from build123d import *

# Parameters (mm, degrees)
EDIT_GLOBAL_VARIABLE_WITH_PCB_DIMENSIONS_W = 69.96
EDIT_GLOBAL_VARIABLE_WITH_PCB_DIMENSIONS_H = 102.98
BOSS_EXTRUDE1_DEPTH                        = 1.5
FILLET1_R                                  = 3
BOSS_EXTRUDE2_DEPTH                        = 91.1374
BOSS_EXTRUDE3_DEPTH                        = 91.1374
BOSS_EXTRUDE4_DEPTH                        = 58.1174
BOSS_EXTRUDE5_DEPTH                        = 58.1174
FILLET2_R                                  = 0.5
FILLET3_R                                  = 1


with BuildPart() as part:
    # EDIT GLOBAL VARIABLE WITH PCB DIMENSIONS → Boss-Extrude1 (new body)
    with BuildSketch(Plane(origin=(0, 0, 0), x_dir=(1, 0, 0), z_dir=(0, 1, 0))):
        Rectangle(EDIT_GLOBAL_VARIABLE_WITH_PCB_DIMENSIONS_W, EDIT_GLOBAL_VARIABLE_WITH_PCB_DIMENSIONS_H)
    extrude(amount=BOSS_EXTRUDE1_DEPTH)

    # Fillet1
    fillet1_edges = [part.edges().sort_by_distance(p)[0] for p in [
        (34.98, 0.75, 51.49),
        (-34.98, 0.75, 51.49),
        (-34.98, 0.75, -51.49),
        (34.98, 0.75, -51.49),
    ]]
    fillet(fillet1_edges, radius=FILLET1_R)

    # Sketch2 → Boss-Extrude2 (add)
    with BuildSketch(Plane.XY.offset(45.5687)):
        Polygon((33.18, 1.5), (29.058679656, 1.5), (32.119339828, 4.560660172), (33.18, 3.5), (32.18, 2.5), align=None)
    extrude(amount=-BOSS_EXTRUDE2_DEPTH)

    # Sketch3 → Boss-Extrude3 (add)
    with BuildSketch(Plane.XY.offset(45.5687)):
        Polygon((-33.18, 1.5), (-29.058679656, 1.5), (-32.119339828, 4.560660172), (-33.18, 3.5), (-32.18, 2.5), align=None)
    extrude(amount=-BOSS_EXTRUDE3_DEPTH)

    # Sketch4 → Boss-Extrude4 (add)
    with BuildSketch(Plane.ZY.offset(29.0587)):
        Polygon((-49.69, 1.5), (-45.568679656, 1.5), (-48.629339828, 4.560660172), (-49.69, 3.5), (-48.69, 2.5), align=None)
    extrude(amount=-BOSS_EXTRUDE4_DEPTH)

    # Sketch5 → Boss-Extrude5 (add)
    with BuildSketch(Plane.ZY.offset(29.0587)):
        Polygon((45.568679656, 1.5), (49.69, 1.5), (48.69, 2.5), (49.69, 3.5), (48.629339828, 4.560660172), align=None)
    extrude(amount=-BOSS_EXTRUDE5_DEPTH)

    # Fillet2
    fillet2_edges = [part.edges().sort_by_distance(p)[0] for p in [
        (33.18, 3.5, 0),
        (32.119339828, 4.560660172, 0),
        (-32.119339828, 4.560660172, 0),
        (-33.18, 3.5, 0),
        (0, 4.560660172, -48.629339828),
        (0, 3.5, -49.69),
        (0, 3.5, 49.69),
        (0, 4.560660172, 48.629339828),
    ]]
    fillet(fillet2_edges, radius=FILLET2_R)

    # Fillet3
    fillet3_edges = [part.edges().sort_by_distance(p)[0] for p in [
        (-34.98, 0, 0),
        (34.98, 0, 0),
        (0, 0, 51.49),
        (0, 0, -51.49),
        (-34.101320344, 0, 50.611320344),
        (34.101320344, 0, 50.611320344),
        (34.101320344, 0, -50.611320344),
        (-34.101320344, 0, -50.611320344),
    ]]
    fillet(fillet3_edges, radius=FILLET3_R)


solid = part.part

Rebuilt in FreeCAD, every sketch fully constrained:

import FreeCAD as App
import Part
import Sketcher

V = App.Vector
Q = App.Units.Quantity


def edges_at(feature, points):
    """Names of the edges that pass closest to the given points."""
    edges = feature.Shape.Edges
    near = lambda p: min(range(len(edges)), key=lambda i: edges[i].distToShape(Part.Vertex(*p))[0])
    return sorted({f"Edge{near(p) + 1}" for p in points})


def add_polygon(sketch, points):
    """Adds a closed chain of lines whose ends are joined by coincident constraints."""
    first, n = sketch.GeometryCount, len(points)
    for a, b in zip(points, points[1:] + points[:1]):
        sketch.addGeometry(Part.LineSegment(App.Vector(*a, 0), App.Vector(*b, 0)), False)
    for i in range(n):
        sketch.addConstraint(Sketcher.Constraint("Coincident", first + i, 2, first + (i + 1) % n, 1))

doc = App.newDocument("Part")
body = doc.addObject("PartDesign::Body", "Body")

# Sketch on XZ plane
sketch1 = body.newObject("Sketcher::SketchObject", "Sketch")
sketch1.AttachmentSupport = (doc.getObject("XZ_Plane"), [""])
sketch1.MapMode = "FlatFace"
add_polygon(sketch1, [(-35, -51), (-35, 51), (35, 51), (35, -51)])  # lines 0-3
sketch1.addConstraint(Sketcher.Constraint("Vertical", 0))
sketch1.addConstraint(Sketcher.Constraint("Horizontal", 1))
sketch1.addConstraint(Sketcher.Constraint("Vertical", 2))
sketch1.addConstraint(Sketcher.Constraint("Horizontal", 3))
sketch1.addConstraint(Sketcher.Constraint("Symmetric", 0, 2, 2, 2, -1, 1))
sketch1.addConstraint(Sketcher.Constraint("DistanceX", 1, 1, 1, 2, Q("69.96 mm")))
sketch1.addConstraint(Sketcher.Constraint("DistanceY", 0, 1, 0, 2, Q("102.98 mm")))
pad1 = body.newObject("PartDesign::Pad", "Pad")
pad1.Profile = sketch1
pad1.Length = 1.5
pad1.Reversed = True
doc.recompute()

fillet = body.newObject("PartDesign::Fillet", "Fillet")
fillet.Base = (pad1, edges_at(pad1, [
    (34.98, 0.75, 51.49),
    (-34.98, 0.75, 51.49),
    (-34.98, 0.75, -51.49),
    (34.98, 0.75, -51.49),
]))
fillet.Radius = 3

# Sketch on XY plane
sketch2 = body.newObject("Sketcher::SketchObject", "Sketch001")
sketch2.AttachmentSupport = (doc.getObject("XY_Plane"), [""])
sketch2.MapMode = "FlatFace"
sketch2.AttachmentOffset = App.Placement(V(0, 0, 45.5687), App.Rotation())
add_polygon(sketch2, [(29.1, 1.5), (33.2, 1.5), (32.2, 2.5), (33.2, 3.5), (32.1, 4.6)])  # lines 0-4
sketch2.addConstraint(Sketcher.Constraint("Horizontal", 0))
sketch2.addConstraint(Sketcher.Constraint("Perpendicular", 1, 2))
sketch2.addConstraint(Sketcher.Constraint("Perpendicular", 2, 3))
sketch2.addConstraint(Sketcher.Constraint("Perpendicular", 3, 4))
sketch2.addConstraint(Sketcher.Constraint("Vertical", 0, 2, 2, 2))
sketch2.addConstraint(Sketcher.Constraint("Equal", 1, 2))
sketch2.addConstraint(Sketcher.Constraint("DistanceX", 1, 2, 0, 2, Q("1 mm")))
sketch2.addConstraint(Sketcher.Constraint("Distance", 3, Q("1.5 mm")))
sketch2.addConstraint(Sketcher.Constraint("DistanceY", -1, 1, 0, 2, Q("1.5 mm")))
sketch2.addConstraint(Sketcher.Constraint("DistanceX", -1, 1, 0, 2, Q("33.18 mm")))
pad2 = body.newObject("PartDesign::Pad", "Pad001")
pad2.Profile = sketch2
pad2.Length = 91.1374
pad2.Reversed = True

# Sketch on XY plane
sketch3 = body.newObject("Sketcher::SketchObject", "Sketch002")
sketch3.AttachmentSupport = (doc.getObject("XY_Plane"), [""])
sketch3.MapMode = "FlatFace"
sketch3.AttachmentOffset = App.Placement(V(0, 0, 45.5687), App.Rotation())
add_polygon(sketch3, [(-33.2, 1.5), (-29.1, 1.5), (-32.1, 4.6), (-33.2, 3.5), (-32.2, 2.5)])  # lines 0-4
sketch3.addConstraint(Sketcher.Constraint("Horizontal", 0))
sketch3.addConstraint(Sketcher.Constraint("Perpendicular", 1, 2))
sketch3.addConstraint(Sketcher.Constraint("Perpendicular", 2, 3))
sketch3.addConstraint(Sketcher.Constraint("Perpendicular", 3, 4))
sketch3.addConstraint(Sketcher.Constraint("Vertical", 2, 2, 4, 2))
sketch3.addConstraint(Sketcher.Constraint("Equal", 3, 4))
sketch3.addConstraint(Sketcher.Constraint("DistanceY", 0, 2, 2, 2, Q("2 mm")))
sketch3.addConstraint(Sketcher.Constraint("Distance", 2, Q("1.5 mm")))
sketch3.addConstraint(Sketcher.Constraint("DistanceY", -1, 1, 0, 2, Q("1.5 mm")))
sketch3.addConstraint(Sketcher.Constraint("DistanceX", 2, 2, -1, 1, Q("33.18 mm")))
pad3 = body.newObject("PartDesign::Pad", "Pad002")
pad3.Profile = sketch3
pad3.Length = 91.1374
pad3.Reversed = True

# Sketch on YZ plane
sketch4 = body.newObject("Sketcher::SketchObject", "Sketch003")
sketch4.AttachmentSupport = (doc.getObject("YZ_Plane"), [""])
sketch4.MapMode = "FlatFace"
sketch4.AttachmentOffset = App.Placement(V(0, 0, -29.0587), App.Rotation())
add_polygon(sketch4, [(1.5, -49.7), (1.5, -45.6), (4.6, -48.6), (3.5, -49.7), (2.5, -48.7)])  # lines 0-4
sketch4.addConstraint(Sketcher.Constraint("Vertical", 0))
sketch4.addConstraint(Sketcher.Constraint("Perpendicular", 1, 2))
sketch4.addConstraint(Sketcher.Constraint("Perpendicular", 2, 3))
sketch4.addConstraint(Sketcher.Constraint("Perpendicular", 3, 4))
sketch4.addConstraint(Sketcher.Constraint("Horizontal", 2, 2, 4, 2))
sketch4.addConstraint(Sketcher.Constraint("Equal", 3, 4))
sketch4.addConstraint(Sketcher.Constraint("DistanceX", 0, 2, 2, 2, Q("2 mm")))
sketch4.addConstraint(Sketcher.Constraint("Distance", 2, Q("1.5 mm")))
sketch4.addConstraint(Sketcher.Constraint("DistanceX", -1, 1, 0, 2, Q("1.5 mm")))
sketch4.addConstraint(Sketcher.Constraint("DistanceY", 2, 2, -1, 1, Q("49.69 mm")))
pad4 = body.newObject("PartDesign::Pad", "Pad003")
pad4.Profile = sketch4
pad4.Length = 58.1174

# Sketch on YZ plane
sketch5 = body.newObject("Sketcher::SketchObject", "Sketch004")
sketch5.AttachmentSupport = (doc.getObject("YZ_Plane"), [""])
sketch5.MapMode = "FlatFace"
sketch5.AttachmentOffset = App.Placement(V(0, 0, -29.0587), App.Rotation())
add_polygon(sketch5, [(1.5, 45.6), (1.5, 49.7), (2.5, 48.7), (3.5, 49.7), (4.6, 48.6)])  # lines 0-4
sketch5.addConstraint(Sketcher.Constraint("Vertical", 0))
sketch5.addConstraint(Sketcher.Constraint("Perpendicular", 1, 2))
sketch5.addConstraint(Sketcher.Constraint("Perpendicular", 2, 3))
sketch5.addConstraint(Sketcher.Constraint("Perpendicular", 3, 4))
sketch5.addConstraint(Sketcher.Constraint("Horizontal", 0, 2, 2, 2))
sketch5.addConstraint(Sketcher.Constraint("Equal", 1, 2))
sketch5.addConstraint(Sketcher.Constraint("DistanceX", 0, 2, 1, 2, Q("1 mm")))
sketch5.addConstraint(Sketcher.Constraint("Distance", 3, Q("1.5 mm")))
sketch5.addConstraint(Sketcher.Constraint("DistanceX", -1, 1, 0, 2, Q("1.5 mm")))
sketch5.addConstraint(Sketcher.Constraint("DistanceY", -1, 1, 0, 2, Q("49.69 mm")))
pad5 = body.newObject("PartDesign::Pad", "Pad004")
pad5.Profile = sketch5
pad5.Length = 58.1174
doc.recompute()

fillet2 = body.newObject("PartDesign::Fillet", "Fillet001")
fillet2.Base = (pad5, edges_at(pad5, [
    (33.18, 3.5, 0),
    (32.119, 4.561, 0),
    (-32.119, 4.561, 0),
    (-33.18, 3.5, 0),
    (0, 4.561, -48.629),
    (0, 3.5, -49.69),
    (0, 3.5, 49.69),
    (0, 4.561, 48.629),
]))
fillet2.Radius = 0.5
doc.recompute()

fillet3 = body.newObject("PartDesign::Fillet", "Fillet002")
fillet3.Base = (fillet2, edges_at(fillet2, [
    (-34.98, 0, 0),
    (34.98, 0, 0),
    (0, 0, 51.49),
    (0, 0, -51.49),
    (-34.101, 0, 50.611),
    (34.101, 0, 50.611),
    (34.101, 0, -50.611),
    (-34.101, 0, -50.611),
]))
fillet3.Radius = 1

doc.recompute()
